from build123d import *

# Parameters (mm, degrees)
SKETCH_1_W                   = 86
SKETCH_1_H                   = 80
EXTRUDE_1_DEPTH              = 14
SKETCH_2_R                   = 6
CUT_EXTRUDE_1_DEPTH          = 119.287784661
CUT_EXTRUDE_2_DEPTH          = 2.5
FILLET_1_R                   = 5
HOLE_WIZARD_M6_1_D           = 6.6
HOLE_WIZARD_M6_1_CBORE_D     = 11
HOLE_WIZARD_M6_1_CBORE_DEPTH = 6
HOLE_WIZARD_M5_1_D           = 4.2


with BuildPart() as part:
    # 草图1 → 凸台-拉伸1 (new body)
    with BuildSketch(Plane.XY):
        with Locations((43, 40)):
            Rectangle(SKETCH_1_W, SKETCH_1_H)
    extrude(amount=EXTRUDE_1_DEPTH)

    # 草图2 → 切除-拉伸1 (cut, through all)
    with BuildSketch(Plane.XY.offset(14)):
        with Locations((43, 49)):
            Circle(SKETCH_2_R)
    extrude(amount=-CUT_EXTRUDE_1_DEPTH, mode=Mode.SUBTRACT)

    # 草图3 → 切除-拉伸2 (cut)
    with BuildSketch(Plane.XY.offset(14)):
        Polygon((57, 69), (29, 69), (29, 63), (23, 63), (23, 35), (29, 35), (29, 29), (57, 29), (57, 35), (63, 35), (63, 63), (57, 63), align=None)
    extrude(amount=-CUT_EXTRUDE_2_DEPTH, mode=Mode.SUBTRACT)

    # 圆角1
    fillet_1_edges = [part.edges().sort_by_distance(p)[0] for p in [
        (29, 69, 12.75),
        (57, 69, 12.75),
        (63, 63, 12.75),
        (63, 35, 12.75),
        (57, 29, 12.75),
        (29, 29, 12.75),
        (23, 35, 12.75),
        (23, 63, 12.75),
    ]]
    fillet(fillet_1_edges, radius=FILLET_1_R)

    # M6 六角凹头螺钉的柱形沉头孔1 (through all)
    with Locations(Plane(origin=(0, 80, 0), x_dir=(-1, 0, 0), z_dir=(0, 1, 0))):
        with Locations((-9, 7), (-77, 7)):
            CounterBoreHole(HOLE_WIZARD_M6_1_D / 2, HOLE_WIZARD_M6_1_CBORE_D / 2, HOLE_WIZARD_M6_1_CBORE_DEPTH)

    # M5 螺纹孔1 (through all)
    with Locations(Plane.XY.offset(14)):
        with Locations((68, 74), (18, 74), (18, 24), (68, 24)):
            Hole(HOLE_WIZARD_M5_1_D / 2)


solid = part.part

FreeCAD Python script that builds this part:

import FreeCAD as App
import Part
import Sketcher

V = App.Vector
Q = App.Units.Quantity


def edges_at(feature, points):
    """Names of the edges that pass closest to the given points."""
    edges = feature.Shape.Edges
    near = lambda p: min(range(len(edges)), key=lambda i: edges[i].distToShape(Part.Vertex(*p))[0])
    return sorted({f"Edge{near(p) + 1}" for p in points})


def add_polygon(sketch, points):
    """Adds a closed chain of lines whose ends are joined by coincident constraints."""
    first, n = sketch.GeometryCount, len(points)
    for a, b in zip(points, points[1:] + points[:1]):
        sketch.addGeometry(Part.LineSegment(App.Vector(*a, 0), App.Vector(*b, 0)), False)
    for i in range(n):
        sketch.addConstraint(Sketcher.Constraint("Coincident", first + i, 2, first + (i + 1) % n, 1))

doc = App.newDocument("Part")
body = doc.addObject("PartDesign::Body", "Body")

# Sketch on XY plane
sketch1 = doc.addObject("Sketcher::SketchObject", "Sketch")
body.addObject(sketch1)
sketch1.AttachmentSupport = (doc.XY_Plane, [""])
sketch1.MapMode = "FlatFace"
add_polygon(sketch1, [(0, 80), (0, 0), (86, 0), (86, 80)])  # lines 0-3
sketch1.addConstraint([
    Sketcher.Constraint("Vertical", 0),
    Sketcher.Constraint("Horizontal", 1),
    Sketcher.Constraint("Vertical", 2),
    Sketcher.Constraint("Horizontal", 3),
    Sketcher.Constraint("Coincident", 0, 2, -1, 1),
    Sketcher.Constraint("DistanceX", 1, 1, 1, 2, Q("86 mm")),
    Sketcher.Constraint("DistanceY", 0, 2, 0, 1, Q("80 mm")),
])
pad1 = doc.addObject("PartDesign::Pad", "Pad")
body.addObject(pad1)
pad1.Profile = sketch1
pad1.Length = 14

# Sketch on XY plane
sketch2 = doc.addObject("Sketcher::SketchObject", "Sketch001")
body.addObject(sketch2)
sketch2.AttachmentSupport = (doc.XY_Plane, [""])
sketch2.MapMode = "FlatFace"
sketch2.AttachmentOffset = App.Placement(V(0, 0, 14), App.Rotation())
sketch2.addGeometry(Part.Circle(V(43, 49, 0), V(0, 0, 1), 6), False)
sketch2.addConstraint([
    Sketcher.Constraint("Diameter", 0, Q("12 mm")),
    Sketcher.Constraint("DistanceX", -1, 1, 0, 3, Q("43 mm")),
    Sketcher.Constraint("DistanceY", -1, 1, 0, 3, Q("49 mm")),
])
pocket1 = doc.addObject("PartDesign::Pocket", "Pocket")
body.addObject(pocket1)
pocket1.Profile = sketch2
pocket1.Type = "ThroughAll"

# Sketch on XY plane
sketch3 = doc.addObject("Sketcher::SketchObject", "Sketch002")
body.addObject(sketch3)
sketch3.AttachmentSupport = (doc.XY_Plane, [""])
sketch3.MapMode = "FlatFace"
sketch3.AttachmentOffset = App.Placement(V(0, 0, 14), App.Rotation())
add_polygon(sketch3, [(57, 69), (29, 69), (29, 63), (23, 63), (23, 35), (29, 35), (29, 29), (57, 29), (57, 35), (63, 35), (63, 63), (57, 63)])  # lines 0-11
sketch3.addConstraint([
    Sketcher.Constraint("Horizontal", 0),
    Sketcher.Constraint("Vertical", 1),
    Sketcher.Constraint("Horizontal", 2),
    Sketcher.Constraint("Vertical", 3),
    Sketcher.Constraint("Horizontal", 4),
    Sketcher.Constraint("Vertical", 5),
    Sketcher.Constraint("Horizontal", 6),
    Sketcher.Constraint("Vertical", 7),
    Sketcher.Constraint("Horizontal", 8),
    Sketcher.Constraint("Vertical", 9),
    Sketcher.Constraint("Horizontal", 10),
    Sketcher.Constraint("Vertical", 11),
    Sketcher.Constraint("Horizontal", 4, 2, 7, 2),
    Sketcher.Constraint("Horizontal", 2, 2, 9, 2),
    Sketcher.Constraint("Vertical", 1, 2, 4, 2),
    Sketcher.Constraint("Vertical", 7, 2, 10, 2),
    Sketcher.Constraint("Equal", 4, 8),
    Sketcher.Constraint("Equal", 10, 1),
    Sketcher.Constraint("Equal", 6, 3),
    Sketcher.Constraint("Equal", 1, 5),
    Sketcher.Constraint("DistanceX", 0, 2, 0, 1, Q("28 mm")),
    Sketcher.Constraint("DistanceX", 2, 2, 2, 1, Q("6 mm")),
    Sketcher.Constraint("DistanceX", -1, 1, 0, 2, Q("29 mm")),
    Sketcher.Constraint("DistanceY", -1, 1, 0, 2, Q("69 mm")),
])
pocket2 = doc.addObject("PartDesign::Pocket", "Pocket001")
body.addObject(pocket2)
pocket2.Profile = sketch3
pocket2.Length = 2.5
doc.recompute()

fillet = doc.addObject("PartDesign::Fillet", "Fillet")
body.addObject(fillet)
fillet.Base = (pocket2, edges_at(pocket2, [
    (29, 69, 12.75),
    (57, 69, 12.75),
    (63, 63, 12.75),
    (63, 35, 12.75),
    (57, 29, 12.75),
    (29, 29, 12.75),
    (23, 35, 12.75),
    (23, 63, 12.75),
]))
fillet.Radius = 5

# Sketch on XZ plane
sketch4 = doc.addObject("Sketcher::SketchObject", "Sketch003")
body.addObject(sketch4)
sketch4.AttachmentSupport = (doc.XZ_Plane, [""])
sketch4.MapMode = "FlatFace"
sketch4.AttachmentOffset = App.Placement(V(0, 0, -80), App.Rotation())
sketch4.addGeometry([
    Part.Circle(V(9, 7, 0), V(0, 0, 1), 3.3),
    Part.Circle(V(77, 7, 0), V(0, 0, 1), 3.3),
], False)
sketch4.addConstraint([
    Sketcher.Constraint("Equal", 0, 1),
    Sketcher.Constraint("Horizontal", 0, 3, 1, 3),
    Sketcher.Constraint("Diameter", 0, Q("6.6 mm")),
    Sketcher.Constraint("DistanceX", -1, 1, 0, 3, Q("9 mm")),
    Sketcher.Constraint("DistanceY", -1, 1, 0, 3, Q("7 mm")),
    Sketcher.Constraint("DistanceX", -1, 1, 1, 3, Q("77 mm")),
])
doc.recompute()
hole = doc.addObject("PartDesign::Hole", "Hole")
body.addObject(hole)
hole.Profile = sketch4
hole.ThreadType = "None"
hole.Diameter = 6.6
hole.DepthType = "ThroughAll"
hole.HoleCutType = "Counterbore"
hole.HoleCutDiameter = 11
hole.HoleCutDepth = 6
hole.Reversed = True

# Sketch on XY plane
sketch5 = doc.addObject("Sketcher::SketchObject", "Sketch004")
body.addObject(sketch5)
sketch5.AttachmentSupport = (doc.XY_Plane, [""])
sketch5.MapMode = "FlatFace"
sketch5.AttachmentOffset = App.Placement(V(0, 0, 14), App.Rotation())
sketch5.addGeometry([
    Part.Circle(V(68, 74, 0), V(0, 0, 1), 2.1),
    Part.Circle(V(18, 74, 0), V(0, 0, 1), 2.1),
    Part.Circle(V(18, 24, 0), V(0, 0, 1), 2.1),
    Part.Circle(V(68, 24, 0), V(0, 0, 1), 2.1),
], False)
sketch5.addConstraint([
    Sketcher.Constraint("Equal", 0, 1),
    Sketcher.Constraint("Equal", 1, 2),
    Sketcher.Constraint("Equal", 2, 3),
    Sketcher.Constraint("Horizontal", 0, 3, 1, 3),
    Sketcher.Constraint("Horizontal", 2, 3, 3, 3),
    Sketcher.Constraint("Vertical", 1, 3, 2, 3),
    Sketcher.Constraint("Vertical", 0, 3, 3, 3),
    Sketcher.Constraint("Diameter", 0, Q("4.2 mm")),
    Sketcher.Constraint("DistanceX", -1, 1, 0, 3, Q("68 mm")),
    Sketcher.Constraint("DistanceY", -1, 1, 0, 3, Q("74 mm")),
    Sketcher.Constraint("DistanceX", -1, 1, 1, 3, Q("18 mm")),
    Sketcher.Constraint("DistanceY", -1, 1, 2, 3, Q("24 mm")),
])
doc.recompute()
hole2 = doc.addObject("PartDesign::Hole", "Hole001")
body.addObject(hole2)
hole2.Profile = sketch5
hole2.ThreadType = "None"
hole2.Diameter = 4.2
hole2.DepthType = "ThroughAll"

doc.recompute()
